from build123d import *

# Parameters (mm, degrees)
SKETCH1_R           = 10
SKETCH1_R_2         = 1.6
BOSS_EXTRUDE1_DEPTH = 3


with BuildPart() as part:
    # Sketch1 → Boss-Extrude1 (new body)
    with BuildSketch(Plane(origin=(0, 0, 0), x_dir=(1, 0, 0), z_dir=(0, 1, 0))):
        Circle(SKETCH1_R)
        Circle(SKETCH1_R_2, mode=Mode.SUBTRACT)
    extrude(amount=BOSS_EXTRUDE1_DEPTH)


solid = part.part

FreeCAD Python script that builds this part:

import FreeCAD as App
import Part
import Sketcher

doc = App.newDocument("Part")
body = doc.addObject("PartDesign::Body", "Body")

sketch1 = doc.addObject("Sketcher::SketchObject", "Sketch")
body.addObject(sketch1)
sketch1.AttachmentSupport = (doc.XZ_Plane, [""])
sketch1.MapMode = "FlatFace"
sketch1.addGeometry([
    Part.Circle(App.Vector(0, 0, 0), App.Vector(0, 0, 1), 10),
    Part.Circle(App.Vector(0, 0, 0), App.Vector(0, 0, 1), 1.6),
], False)
sketch1.addConstraint([
    Sketcher.Constraint("Coincident", 0, 3, -1, 1),
    Sketcher.Constraint("Coincident", 1, 3, -1, 1),
    Sketcher.Constraint("Diameter", 0, 20.0),
    Sketcher.Constraint("Diameter", 1, 3.2),
])
pad1 = doc.addObject("PartDesign::Pad", "Pad")
body.addObject(pad1)
pad1.Profile = sketch1
pad1.Length = 3
pad1.Reversed = True

doc.recompute()
